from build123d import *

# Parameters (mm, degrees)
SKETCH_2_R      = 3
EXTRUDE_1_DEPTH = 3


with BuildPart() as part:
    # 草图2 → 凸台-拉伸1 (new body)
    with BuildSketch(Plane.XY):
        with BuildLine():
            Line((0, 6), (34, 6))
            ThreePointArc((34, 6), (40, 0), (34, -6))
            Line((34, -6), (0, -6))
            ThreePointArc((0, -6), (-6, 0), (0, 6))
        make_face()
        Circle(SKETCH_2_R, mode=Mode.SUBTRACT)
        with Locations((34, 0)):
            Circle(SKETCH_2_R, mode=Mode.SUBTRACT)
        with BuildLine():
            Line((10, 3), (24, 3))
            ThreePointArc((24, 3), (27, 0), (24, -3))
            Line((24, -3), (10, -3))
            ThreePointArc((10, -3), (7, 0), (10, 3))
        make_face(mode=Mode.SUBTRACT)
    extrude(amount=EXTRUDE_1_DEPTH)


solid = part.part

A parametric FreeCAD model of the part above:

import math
import FreeCAD as App
import Part
import Sketcher
from FreeCAD import Vector

doc = App.newDocument("Part")
params = doc.addObject("Spreadsheet::Sheet", "Params")
for row, (alias, value) in enumerate([
    ("sketch1_diameter", "6 mm"),
    ("sketch1_radius", "6 mm"),
    ("sketch1_width", "34 mm"),
    ("sketch1_width2", "14 mm"),
    ("pad1_length", "3 mm"),
], start=1):
    params.set(f"A{row}", alias)
    params.set(f"B{row}", "=" + value)
    params.setAlias(f"B{row}", alias)

body = doc.addObject("PartDesign::Body", "Body")

# Sketch on XY plane
sketch1 = body.newObject("Sketcher::SketchObject", "Sketch")
sketch1.AttachmentSupport = (doc.getObject("XY_Plane"), [""])
sketch1.MapMode = "FlatFace"
sketch1.addGeometry(Part.LineSegment(Vector(34, 6, 0), Vector(0, 6, 0)), False)
sketch1.addGeometry(Part.ArcOfCircle(Part.Circle(Vector(0, 0, 0), Vector(0, 0, 1), 6), math.radians(90), math.radians(270)), False)
sketch1.addGeometry(Part.LineSegment(Vector(0, -6, 0), Vector(34, -6, 0)), False)
sketch1.addGeometry(Part.ArcOfCircle(Part.Circle(Vector(34, 0, 0), Vector(0, 0, 1), 6), math.radians(-90), math.radians(90)), False)
sketch1.addGeometry(Part.Circle(Vector(34, 0, 0), Vector(0, 0, 1), 3), False)
sketch1.addGeometry(Part.LineSegment(Vector(10, 3, 0), Vector(24, 3, 0)), False)
sketch1.addGeometry(Part.ArcOfCircle(Part.Circle(Vector(24, 0, 0), Vector(0, 0, 1), 3), math.radians(-90), math.radians(90)), False)
sketch1.addGeometry(Part.LineSegment(Vector(24, -3, 0), Vector(10, -3, 0)), False)
sketch1.addGeometry(Part.ArcOfCircle(Part.Circle(Vector(10, 0, 0), Vector(0, 0, 1), 3), math.radians(90), math.radians(270)), False)
sketch1.addGeometry(Part.Circle(Vector(0, 0, 0), Vector(0, 0, 1), 3), False)
sketch1.addConstraint(Sketcher.Constraint("Tangent", 0, 2, 1, 1))
sketch1.addConstraint(Sketcher.Constraint("Tangent", 1, 2, 2, 1))
sketch1.addConstraint(Sketcher.Constraint("Tangent", 2, 2, 3, 1))
sketch1.addConstraint(Sketcher.Constraint("Tangent", 3, 2, 0, 1))
sketch1.addConstraint(Sketcher.Constraint("Tangent", 5, 2, 6, 2))
sketch1.addConstraint(Sketcher.Constraint("Tangent", 6, 1, 7, 1))
sketch1.addConstraint(Sketcher.Constraint("Tangent", 7, 2, 8, 2))
sketch1.addConstraint(Sketcher.Constraint("Tangent", 8, 1, 5, 1))
sketch1.addConstraint(Sketcher.Constraint("Horizontal", 0))
sketch1.addConstraint(Sketcher.Constraint("Horizontal", 2))
sketch1.addConstraint(Sketcher.Constraint("Horizontal", 5))
sketch1.addConstraint(Sketcher.Constraint("Horizontal", 7))
sketch1.addConstraint(Sketcher.Constraint("Coincident", 1, 3, -1, 1))
sketch1.addConstraint(Sketcher.Constraint("Coincident", 9, 3, -1, 1))
sketch1.addConstraint(Sketcher.Constraint("Coincident", 4, 3, 3, 3))
sketch1.addConstraint(Sketcher.Constraint("Equal", 4, 6))
sketch1.addConstraint(Sketcher.Constraint("Equal", 8, 9))
sketch1.addConstraint(Sketcher.Constraint("PointOnObject", 6, 3, -1))
sketch1.addConstraint(Sketcher.Constraint("Diameter", 4, 6.0))
sketch1.addConstraint(Sketcher.Constraint("Radius", 1, 6.0))
sketch1.addConstraint(Sketcher.Constraint("DistanceX", 0, 2, 0, 1, 34.0))
sketch1.addConstraint(Sketcher.Constraint("DistanceX", 5, 1, 5, 2, 14.0))
sketch1.addConstraint(Sketcher.Constraint("DistanceX", -1, 1, 6, 3, 24.0))
sketch1.setExpression("Constraints[18]", "Params.sketch1_diameter")
sketch1.setExpression("Constraints[19]", "Params.sketch1_radius")
sketch1.setExpression("Constraints[20]", "Params.sketch1_width")
sketch1.setExpression("Constraints[21]", "Params.sketch1_width2")
pad1 = body.newObject("PartDesign::Pad", "Pad")
pad1.Profile = sketch1
pad1.setExpression("Length", "Params.pad1_length")

doc.recompute()
